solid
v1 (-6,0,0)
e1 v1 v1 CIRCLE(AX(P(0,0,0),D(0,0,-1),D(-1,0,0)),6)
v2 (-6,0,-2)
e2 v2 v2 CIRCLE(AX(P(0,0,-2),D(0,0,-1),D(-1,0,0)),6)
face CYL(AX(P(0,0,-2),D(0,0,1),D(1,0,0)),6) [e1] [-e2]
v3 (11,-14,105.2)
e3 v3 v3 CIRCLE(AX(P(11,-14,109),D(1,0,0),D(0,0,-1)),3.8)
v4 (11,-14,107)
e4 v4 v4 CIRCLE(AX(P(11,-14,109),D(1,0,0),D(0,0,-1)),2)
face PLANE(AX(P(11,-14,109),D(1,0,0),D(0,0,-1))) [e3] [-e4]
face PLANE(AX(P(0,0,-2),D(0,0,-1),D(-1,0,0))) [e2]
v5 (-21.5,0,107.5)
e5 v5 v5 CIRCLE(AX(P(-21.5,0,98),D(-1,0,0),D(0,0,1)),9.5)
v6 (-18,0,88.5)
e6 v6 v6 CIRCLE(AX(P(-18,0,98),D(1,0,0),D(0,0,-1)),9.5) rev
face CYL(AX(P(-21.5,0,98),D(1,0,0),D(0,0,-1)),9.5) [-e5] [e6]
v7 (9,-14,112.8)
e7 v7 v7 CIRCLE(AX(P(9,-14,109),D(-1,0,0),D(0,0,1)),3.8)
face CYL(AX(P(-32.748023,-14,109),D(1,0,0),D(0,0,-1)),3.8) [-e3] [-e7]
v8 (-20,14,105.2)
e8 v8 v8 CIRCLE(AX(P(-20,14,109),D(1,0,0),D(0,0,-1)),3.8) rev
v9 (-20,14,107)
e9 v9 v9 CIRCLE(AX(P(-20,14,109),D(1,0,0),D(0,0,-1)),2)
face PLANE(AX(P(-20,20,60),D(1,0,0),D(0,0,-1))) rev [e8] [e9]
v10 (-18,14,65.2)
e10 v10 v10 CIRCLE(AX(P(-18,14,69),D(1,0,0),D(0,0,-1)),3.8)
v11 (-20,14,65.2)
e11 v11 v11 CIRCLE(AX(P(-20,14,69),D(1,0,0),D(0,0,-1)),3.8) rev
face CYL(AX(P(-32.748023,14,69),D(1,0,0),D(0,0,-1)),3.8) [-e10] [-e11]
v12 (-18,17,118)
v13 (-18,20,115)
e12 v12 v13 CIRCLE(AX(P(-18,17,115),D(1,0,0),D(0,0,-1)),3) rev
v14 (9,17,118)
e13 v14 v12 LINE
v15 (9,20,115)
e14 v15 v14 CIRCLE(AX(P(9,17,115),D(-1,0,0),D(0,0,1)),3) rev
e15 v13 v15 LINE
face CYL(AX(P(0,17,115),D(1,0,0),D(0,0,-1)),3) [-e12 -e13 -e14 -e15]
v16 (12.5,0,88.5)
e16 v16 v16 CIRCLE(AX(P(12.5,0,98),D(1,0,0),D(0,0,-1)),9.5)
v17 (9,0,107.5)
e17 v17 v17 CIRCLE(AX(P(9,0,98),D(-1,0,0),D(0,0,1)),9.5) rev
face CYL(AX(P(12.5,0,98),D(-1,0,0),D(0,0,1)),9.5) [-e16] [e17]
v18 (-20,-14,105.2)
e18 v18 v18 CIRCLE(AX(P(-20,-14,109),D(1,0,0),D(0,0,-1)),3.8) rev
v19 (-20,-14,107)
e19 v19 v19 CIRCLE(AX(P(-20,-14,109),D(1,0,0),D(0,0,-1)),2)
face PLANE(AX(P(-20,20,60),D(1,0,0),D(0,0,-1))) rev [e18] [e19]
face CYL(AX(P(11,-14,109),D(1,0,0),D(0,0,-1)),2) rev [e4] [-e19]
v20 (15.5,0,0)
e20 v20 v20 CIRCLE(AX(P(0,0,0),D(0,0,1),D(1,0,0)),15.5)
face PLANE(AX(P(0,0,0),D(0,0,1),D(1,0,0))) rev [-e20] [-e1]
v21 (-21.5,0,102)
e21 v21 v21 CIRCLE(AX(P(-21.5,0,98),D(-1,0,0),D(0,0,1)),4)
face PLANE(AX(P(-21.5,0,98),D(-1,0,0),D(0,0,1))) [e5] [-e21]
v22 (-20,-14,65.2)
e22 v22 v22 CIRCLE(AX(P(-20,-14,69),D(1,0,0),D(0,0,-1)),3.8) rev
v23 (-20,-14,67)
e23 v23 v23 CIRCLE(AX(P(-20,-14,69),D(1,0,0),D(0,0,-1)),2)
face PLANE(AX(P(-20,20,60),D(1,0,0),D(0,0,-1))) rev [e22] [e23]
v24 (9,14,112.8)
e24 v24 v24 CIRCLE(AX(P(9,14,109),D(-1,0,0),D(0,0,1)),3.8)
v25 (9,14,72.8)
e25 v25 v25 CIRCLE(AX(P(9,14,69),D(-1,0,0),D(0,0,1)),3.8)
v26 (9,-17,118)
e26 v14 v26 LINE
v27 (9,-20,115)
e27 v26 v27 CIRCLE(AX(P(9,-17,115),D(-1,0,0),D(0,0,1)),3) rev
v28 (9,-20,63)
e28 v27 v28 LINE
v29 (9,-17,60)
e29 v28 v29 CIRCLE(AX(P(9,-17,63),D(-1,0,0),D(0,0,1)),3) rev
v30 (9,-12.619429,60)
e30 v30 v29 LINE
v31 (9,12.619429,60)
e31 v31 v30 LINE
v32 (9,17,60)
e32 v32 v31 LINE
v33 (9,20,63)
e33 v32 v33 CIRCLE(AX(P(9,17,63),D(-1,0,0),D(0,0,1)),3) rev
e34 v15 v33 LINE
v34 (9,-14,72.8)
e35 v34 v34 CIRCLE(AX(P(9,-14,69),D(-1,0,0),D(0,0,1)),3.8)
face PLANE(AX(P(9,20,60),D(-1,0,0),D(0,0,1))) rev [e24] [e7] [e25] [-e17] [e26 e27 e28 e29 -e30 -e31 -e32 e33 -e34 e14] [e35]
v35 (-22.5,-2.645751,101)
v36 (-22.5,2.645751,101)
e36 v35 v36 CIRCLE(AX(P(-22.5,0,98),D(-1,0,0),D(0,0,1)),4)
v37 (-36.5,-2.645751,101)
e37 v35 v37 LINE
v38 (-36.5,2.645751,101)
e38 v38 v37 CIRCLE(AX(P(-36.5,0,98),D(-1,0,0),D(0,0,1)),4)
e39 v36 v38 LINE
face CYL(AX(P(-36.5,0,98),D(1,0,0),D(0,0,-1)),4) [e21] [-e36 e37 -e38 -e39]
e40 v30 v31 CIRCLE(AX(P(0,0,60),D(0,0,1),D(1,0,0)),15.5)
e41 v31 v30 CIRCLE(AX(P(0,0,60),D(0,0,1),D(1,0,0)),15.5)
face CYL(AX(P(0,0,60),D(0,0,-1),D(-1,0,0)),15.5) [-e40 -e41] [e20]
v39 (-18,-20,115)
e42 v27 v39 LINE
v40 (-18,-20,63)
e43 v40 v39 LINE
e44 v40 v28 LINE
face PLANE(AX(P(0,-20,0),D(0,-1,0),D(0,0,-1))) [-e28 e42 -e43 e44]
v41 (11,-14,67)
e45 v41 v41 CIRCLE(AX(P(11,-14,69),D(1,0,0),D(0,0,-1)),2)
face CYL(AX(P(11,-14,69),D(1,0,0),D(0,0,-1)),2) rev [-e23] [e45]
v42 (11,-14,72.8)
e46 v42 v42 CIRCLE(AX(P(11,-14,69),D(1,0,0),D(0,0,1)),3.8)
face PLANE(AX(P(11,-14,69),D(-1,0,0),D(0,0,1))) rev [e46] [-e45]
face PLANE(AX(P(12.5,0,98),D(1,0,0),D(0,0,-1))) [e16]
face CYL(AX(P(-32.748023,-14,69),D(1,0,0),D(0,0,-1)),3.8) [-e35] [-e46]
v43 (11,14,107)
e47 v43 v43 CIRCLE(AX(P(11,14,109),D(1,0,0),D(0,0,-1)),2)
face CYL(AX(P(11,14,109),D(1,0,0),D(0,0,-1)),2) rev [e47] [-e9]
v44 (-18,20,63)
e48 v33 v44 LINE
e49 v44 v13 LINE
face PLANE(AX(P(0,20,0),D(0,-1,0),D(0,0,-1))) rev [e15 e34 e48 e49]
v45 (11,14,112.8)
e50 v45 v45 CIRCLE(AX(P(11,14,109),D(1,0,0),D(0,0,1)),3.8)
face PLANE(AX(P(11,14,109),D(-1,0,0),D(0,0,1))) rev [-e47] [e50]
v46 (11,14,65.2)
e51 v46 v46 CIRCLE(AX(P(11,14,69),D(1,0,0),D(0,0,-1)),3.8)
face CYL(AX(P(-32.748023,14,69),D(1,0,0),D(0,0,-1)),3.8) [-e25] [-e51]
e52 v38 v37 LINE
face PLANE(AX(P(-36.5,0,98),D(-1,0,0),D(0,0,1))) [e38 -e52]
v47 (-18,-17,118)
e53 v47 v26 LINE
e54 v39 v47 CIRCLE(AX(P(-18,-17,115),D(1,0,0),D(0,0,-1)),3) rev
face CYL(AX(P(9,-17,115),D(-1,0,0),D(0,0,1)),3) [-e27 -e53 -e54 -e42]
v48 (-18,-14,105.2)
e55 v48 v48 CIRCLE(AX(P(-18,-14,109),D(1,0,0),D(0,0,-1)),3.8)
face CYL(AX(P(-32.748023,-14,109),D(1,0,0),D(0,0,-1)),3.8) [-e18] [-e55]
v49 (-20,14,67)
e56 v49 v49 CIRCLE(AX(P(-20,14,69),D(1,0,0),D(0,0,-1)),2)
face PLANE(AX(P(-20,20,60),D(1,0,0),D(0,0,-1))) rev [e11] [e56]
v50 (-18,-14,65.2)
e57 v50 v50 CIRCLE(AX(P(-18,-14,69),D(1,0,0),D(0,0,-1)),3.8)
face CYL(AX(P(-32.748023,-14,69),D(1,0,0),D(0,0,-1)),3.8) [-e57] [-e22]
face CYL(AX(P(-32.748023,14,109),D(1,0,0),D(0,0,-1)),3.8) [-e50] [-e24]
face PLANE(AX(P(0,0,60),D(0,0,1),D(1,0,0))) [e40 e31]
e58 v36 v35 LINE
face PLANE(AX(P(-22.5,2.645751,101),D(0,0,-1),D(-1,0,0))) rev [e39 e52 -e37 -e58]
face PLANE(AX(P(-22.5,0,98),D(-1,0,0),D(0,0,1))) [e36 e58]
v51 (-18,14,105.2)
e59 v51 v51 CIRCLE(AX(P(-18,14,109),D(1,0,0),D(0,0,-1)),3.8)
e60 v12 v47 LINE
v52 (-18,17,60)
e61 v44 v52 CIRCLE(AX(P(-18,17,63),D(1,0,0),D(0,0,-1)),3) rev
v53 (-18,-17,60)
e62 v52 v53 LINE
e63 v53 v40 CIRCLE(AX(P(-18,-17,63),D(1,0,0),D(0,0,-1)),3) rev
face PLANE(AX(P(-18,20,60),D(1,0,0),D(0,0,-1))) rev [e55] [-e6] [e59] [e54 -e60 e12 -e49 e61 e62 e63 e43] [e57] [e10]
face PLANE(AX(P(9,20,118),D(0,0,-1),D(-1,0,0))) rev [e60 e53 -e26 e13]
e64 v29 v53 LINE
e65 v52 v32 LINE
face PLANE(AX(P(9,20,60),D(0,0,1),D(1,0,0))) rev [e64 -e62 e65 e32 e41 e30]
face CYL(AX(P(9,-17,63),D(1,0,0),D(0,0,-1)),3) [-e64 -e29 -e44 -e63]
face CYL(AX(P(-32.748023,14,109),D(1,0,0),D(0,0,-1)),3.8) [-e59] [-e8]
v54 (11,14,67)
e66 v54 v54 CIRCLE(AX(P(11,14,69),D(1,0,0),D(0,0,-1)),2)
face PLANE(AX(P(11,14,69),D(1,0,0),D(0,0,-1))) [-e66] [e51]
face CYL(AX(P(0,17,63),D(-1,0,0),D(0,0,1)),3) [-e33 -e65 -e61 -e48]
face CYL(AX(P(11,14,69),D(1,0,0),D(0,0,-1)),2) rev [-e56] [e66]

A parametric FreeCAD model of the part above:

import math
import FreeCAD as App
import Part
import Sketcher
from FreeCAD import Vector


def edges_at(feature, points):
    """Names of the edges that pass closest to the given points."""
    edges = feature.Shape.Edges
    near = lambda p: min(range(len(edges)), key=lambda i: edges[i].distToShape(Part.Vertex(*p))[0])
    return sorted({f"Edge{near(p) + 1}" for p in points})


def add_polygon(sketch, points):
    """Adds a closed chain of lines whose ends are joined by coincident constraints."""
    first, n = sketch.GeometryCount, len(points)
    for a, b in zip(points, points[1:] + points[:1]):
        sketch.addGeometry(Part.LineSegment(App.Vector(*a, 0), App.Vector(*b, 0)), False)
    for i in range(n):
        sketch.addConstraint(Sketcher.Constraint("Coincident", first + i, 2, first + (i + 1) % n, 1))

doc = App.newDocument("Part")
body = doc.addObject("PartDesign::Body", "Body")

# Sketch on XY plane
sketch1 = body.newObject("Sketcher::SketchObject", "Sketch")
sketch1.AttachmentSupport = (doc.getObject("XY_Plane"), [""])
sketch1.MapMode = "FlatFace"
sketch1.addGeometry(Part.Circle(Vector(0, 0, 0), Vector(0, 0, 1), 16), False)
sketch1.addConstraint([
    Sketcher.Constraint("Coincident", 0, 3, -1, 1),
    Sketcher.Constraint("Diameter", 0, 31.0),
])
pad1 = body.newObject("PartDesign::Pad", "Pad")
pad1.Profile = sketch1
pad1.Length = 60

# Sketch on XY plane
sketch2 = body.newObject("Sketcher::SketchObject", "Sketch001")
sketch2.AttachmentSupport = (doc.getObject("XY_Plane"), [""])
sketch2.MapMode = "FlatFace"
sketch2.addGeometry(Part.Circle(Vector(0, 0, 0), Vector(0, 0, 1), 6), False)
sketch2.addConstraint([
    Sketcher.Constraint("Coincident", 0, 3, -1, 1),
    Sketcher.Constraint("Diameter", 0, 12.0),
])
pad2 = body.newObject("PartDesign::Pad", "Pad001")
pad2.Profile = sketch2
pad2.Length = 2
pad2.Reversed = True

# Sketch on XZ plane
sketch3 = body.newObject("Sketcher::SketchObject", "Sketch002")
sketch3.AttachmentSupport = (doc.getObject("XZ_Plane"), [""])
sketch3.MapMode = "FlatFace"
add_polygon(sketch3, [(-18, 60), (-18, 118), (9, 118), (9, 60)])  # lines 0-3
sketch3.addConstraint([
    Sketcher.Constraint("Vertical", 0),
    Sketcher.Constraint("Horizontal", 1),
    Sketcher.Constraint("Vertical", 2),
    Sketcher.Constraint("Horizontal", 3),
    Sketcher.Constraint("DistanceX", 1, 1, 1, 2, 27.0),
    Sketcher.Constraint("DistanceY", 0, 1, 0, 2, 58.0),
    Sketcher.Constraint("DistanceX", 0, 2, -1, 1, 18.0),
    Sketcher.Constraint("DistanceY", -1, 1, 0, 2, 118.0),
])
pad3 = body.newObject("PartDesign::Pad", "Pad002")
pad3.Profile = sketch3
pad3.Length = 40
pad3.Midplane = True

# Sketch on YZ plane
sketch4 = body.newObject("Sketcher::SketchObject", "Sketch003")
sketch4.AttachmentSupport = (doc.getObject("YZ_Plane"), [""])
sketch4.MapMode = "FlatFace"
sketch4.AttachmentOffset = App.Placement(Vector(0, 0, -18), App.Rotation())
sketch4.addGeometry(Part.Circle(Vector(0, 98, 0), Vector(0, 0, 1), 10), False)
sketch4.addConstraint([
    Sketcher.Constraint("PointOnObject", 0, 3, -2),
    Sketcher.Constraint("Diameter", 0, 19.0),
    Sketcher.Constraint("DistanceY", -1, 1, 0, 3, 98.0),
])
pad4 = body.newObject("PartDesign::Pad", "Pad003")
pad4.Profile = sketch4
pad4.Length = 3.5
pad4.Reversed = True

# Sketch on YZ plane
sketch5 = body.newObject("Sketcher::SketchObject", "Sketch004")
sketch5.AttachmentSupport = (doc.getObject("YZ_Plane"), [""])
sketch5.MapMode = "FlatFace"
sketch5.AttachmentOffset = App.Placement(Vector(0, 0, 12.5), App.Rotation())
sketch5.addGeometry(Part.Circle(Vector(0, 98, 0), Vector(0, 0, 1), 10), False)
sketch5.addConstraint([
    Sketcher.Constraint("PointOnObject", 0, 3, -2),
    Sketcher.Constraint("Diameter", 0, 19.0),
    Sketcher.Constraint("DistanceY", -1, 1, 0, 3, 98.0),
])
pad5 = body.newObject("PartDesign::Pad", "Pad004")
pad5.Profile = sketch5
pad5.Length = 3.5
pad5.Reversed = True

# Sketch on YZ plane
sketch6 = body.newObject("Sketcher::SketchObject", "Sketch005")
sketch6.AttachmentSupport = (doc.getObject("YZ_Plane"), [""])
sketch6.MapMode = "FlatFace"
sketch6.AttachmentOffset = App.Placement(Vector(0, 0, -21.5), App.Rotation())
sketch6.addGeometry(Part.Circle(Vector(0, 98, 0), Vector(0, 0, 1), 4), False)
sketch6.addConstraint([
    Sketcher.Constraint("PointOnObject", 0, 3, -2),
    Sketcher.Constraint("Diameter", 0, 8.0),
    Sketcher.Constraint("DistanceY", -1, 1, 0, 3, 98.0),
])
pad6 = body.newObject("PartDesign::Pad", "Pad005")
pad6.Profile = sketch6
pad6.Length = 15
pad6.Reversed = True

# Sketch on YZ plane
sketch7 = body.newObject("Sketcher::SketchObject", "Sketch006")
sketch7.AttachmentSupport = (doc.getObject("YZ_Plane"), [""])
sketch7.MapMode = "FlatFace"
sketch7.AttachmentOffset = App.Placement(Vector(0, 0, -22.5), App.Rotation())
sketch7.addGeometry([
    Part.LineSegment(Vector(2.6, 101, 0), Vector(-2.6, 101, 0)),
    Part.ArcOfCircle(Part.Circle(Vector(0, 98, 0), Vector(0, 0, 1), 4), math.radians(49), math.radians(131)),
], False)
sketch7.addConstraint([
    Sketcher.Constraint("Coincident", 0, 1, 1, 1),
    Sketcher.Constraint("Coincident", 1, 2, 0, 2),
    Sketcher.Constraint("Horizontal", 0),
    Sketcher.Constraint("PointOnObject", 1, 3, -2),
    Sketcher.Constraint("Radius", 1, 4.0),
    Sketcher.Constraint("DistanceY", -1, 1, 1, 3, 98.0),
    Sketcher.Constraint("DistanceY", -1, 1, 0, 1, 101.0),
])
pocket1 = body.newObject("PartDesign::Pocket", "Pocket")
pocket1.Profile = sketch7
pocket1.Length = 14

# Sketch on YZ plane
sketch8 = body.newObject("Sketcher::SketchObject", "Sketch007")
sketch8.AttachmentSupport = (doc.getObject("YZ_Plane"), [""])
sketch8.MapMode = "FlatFace"
sketch8.AttachmentOffset = App.Placement(Vector(0, 0, 9), App.Rotation())
sketch8.addGeometry([
    Part.Circle(Vector(14, 69, 0), Vector(0, 0, 1), 3.8),
    Part.Circle(Vector(14, 109, 0), Vector(0, 0, 1), 3.8),
    Part.Circle(Vector(-14, 69, 0), Vector(0, 0, 1), 3.8),
    Part.Circle(Vector(-14, 109, 0), Vector(0, 0, 1), 3.8),
], False)
sketch8.addConstraint([
    Sketcher.Constraint("Equal", 0, 1),
    Sketcher.Constraint("Equal", 1, 2),
    Sketcher.Constraint("Equal", 2, 3),
    Sketcher.Constraint("Symmetric", 0, 3, 2, 3, -2),
    Sketcher.Constraint("Symmetric", 1, 3, 3, 3, -2),
    Sketcher.Constraint("Vertical", 0, 3, 1, 3),
    Sketcher.Constraint("Diameter", 0, 7.6),
    Sketcher.Constraint("DistanceX", -1, 1, 0, 3, 14.0),
    Sketcher.Constraint("DistanceY", -1, 1, 0, 3, 69.0),
    Sketcher.Constraint("DistanceY", -1, 1, 1, 3, 109.0),
])
pad7 = body.newObject("PartDesign::Pad", "Pad006")
pad7.Profile = sketch8
pad7.Type = "TwoLengths"
pad7.Length = 2
pad7.Length2 = 29

# Sketch on YZ plane
sketch9 = body.newObject("Sketcher::SketchObject", "Sketch008")
sketch9.AttachmentSupport = (doc.getObject("YZ_Plane"), [""])
sketch9.MapMode = "FlatFace"
sketch9.AttachmentOffset = App.Placement(Vector(0, 0, 11), App.Rotation())
sketch9.addGeometry([
    Part.Circle(Vector(14, 109, 0), Vector(0, 0, 1), 2),
    Part.Circle(Vector(14, 69, 0), Vector(0, 0, 1), 2),
    Part.Circle(Vector(-14, 69, 0), Vector(0, 0, 1), 2),
    Part.Circle(Vector(-14, 109, 0), Vector(0, 0, 1), 2),
], False)
sketch9.addConstraint([
    Sketcher.Constraint("Equal", 0, 1),
    Sketcher.Constraint("Equal", 1, 2),
    Sketcher.Constraint("Equal", 2, 3),
    Sketcher.Constraint("Symmetric", 1, 3, 2, 3, -2),
    Sketcher.Constraint("Symmetric", 0, 3, 3, 3, -2),
    Sketcher.Constraint("Vertical", 0, 3, 1, 3),
    Sketcher.Constraint("Diameter", 0, 4.0),
    Sketcher.Constraint("DistanceX", -1, 1, 0, 3, 14.0),
    Sketcher.Constraint("DistanceY", -1, 1, 0, 3, 109.0),
    Sketcher.Constraint("DistanceY", -1, 1, 1, 3, 69.0),
])
doc.recompute()
hole = body.newObject("PartDesign::Hole", "Hole")
hole.Profile = sketch9
hole.ThreadType = "None"
hole.Diameter = 4
hole.DepthType = "ThroughAll"
doc.recompute()

fillet = body.newObject("PartDesign::Fillet", "Fillet")
fillet.Base = (hole, edges_at(hole, [
    (-4.5, -20, 60),
    (-4.5, -20, 118),
    (-4.5, 20, 60),
    (-4.5, 20, 118),
]))
fillet.Radius = 3

doc.recompute()
